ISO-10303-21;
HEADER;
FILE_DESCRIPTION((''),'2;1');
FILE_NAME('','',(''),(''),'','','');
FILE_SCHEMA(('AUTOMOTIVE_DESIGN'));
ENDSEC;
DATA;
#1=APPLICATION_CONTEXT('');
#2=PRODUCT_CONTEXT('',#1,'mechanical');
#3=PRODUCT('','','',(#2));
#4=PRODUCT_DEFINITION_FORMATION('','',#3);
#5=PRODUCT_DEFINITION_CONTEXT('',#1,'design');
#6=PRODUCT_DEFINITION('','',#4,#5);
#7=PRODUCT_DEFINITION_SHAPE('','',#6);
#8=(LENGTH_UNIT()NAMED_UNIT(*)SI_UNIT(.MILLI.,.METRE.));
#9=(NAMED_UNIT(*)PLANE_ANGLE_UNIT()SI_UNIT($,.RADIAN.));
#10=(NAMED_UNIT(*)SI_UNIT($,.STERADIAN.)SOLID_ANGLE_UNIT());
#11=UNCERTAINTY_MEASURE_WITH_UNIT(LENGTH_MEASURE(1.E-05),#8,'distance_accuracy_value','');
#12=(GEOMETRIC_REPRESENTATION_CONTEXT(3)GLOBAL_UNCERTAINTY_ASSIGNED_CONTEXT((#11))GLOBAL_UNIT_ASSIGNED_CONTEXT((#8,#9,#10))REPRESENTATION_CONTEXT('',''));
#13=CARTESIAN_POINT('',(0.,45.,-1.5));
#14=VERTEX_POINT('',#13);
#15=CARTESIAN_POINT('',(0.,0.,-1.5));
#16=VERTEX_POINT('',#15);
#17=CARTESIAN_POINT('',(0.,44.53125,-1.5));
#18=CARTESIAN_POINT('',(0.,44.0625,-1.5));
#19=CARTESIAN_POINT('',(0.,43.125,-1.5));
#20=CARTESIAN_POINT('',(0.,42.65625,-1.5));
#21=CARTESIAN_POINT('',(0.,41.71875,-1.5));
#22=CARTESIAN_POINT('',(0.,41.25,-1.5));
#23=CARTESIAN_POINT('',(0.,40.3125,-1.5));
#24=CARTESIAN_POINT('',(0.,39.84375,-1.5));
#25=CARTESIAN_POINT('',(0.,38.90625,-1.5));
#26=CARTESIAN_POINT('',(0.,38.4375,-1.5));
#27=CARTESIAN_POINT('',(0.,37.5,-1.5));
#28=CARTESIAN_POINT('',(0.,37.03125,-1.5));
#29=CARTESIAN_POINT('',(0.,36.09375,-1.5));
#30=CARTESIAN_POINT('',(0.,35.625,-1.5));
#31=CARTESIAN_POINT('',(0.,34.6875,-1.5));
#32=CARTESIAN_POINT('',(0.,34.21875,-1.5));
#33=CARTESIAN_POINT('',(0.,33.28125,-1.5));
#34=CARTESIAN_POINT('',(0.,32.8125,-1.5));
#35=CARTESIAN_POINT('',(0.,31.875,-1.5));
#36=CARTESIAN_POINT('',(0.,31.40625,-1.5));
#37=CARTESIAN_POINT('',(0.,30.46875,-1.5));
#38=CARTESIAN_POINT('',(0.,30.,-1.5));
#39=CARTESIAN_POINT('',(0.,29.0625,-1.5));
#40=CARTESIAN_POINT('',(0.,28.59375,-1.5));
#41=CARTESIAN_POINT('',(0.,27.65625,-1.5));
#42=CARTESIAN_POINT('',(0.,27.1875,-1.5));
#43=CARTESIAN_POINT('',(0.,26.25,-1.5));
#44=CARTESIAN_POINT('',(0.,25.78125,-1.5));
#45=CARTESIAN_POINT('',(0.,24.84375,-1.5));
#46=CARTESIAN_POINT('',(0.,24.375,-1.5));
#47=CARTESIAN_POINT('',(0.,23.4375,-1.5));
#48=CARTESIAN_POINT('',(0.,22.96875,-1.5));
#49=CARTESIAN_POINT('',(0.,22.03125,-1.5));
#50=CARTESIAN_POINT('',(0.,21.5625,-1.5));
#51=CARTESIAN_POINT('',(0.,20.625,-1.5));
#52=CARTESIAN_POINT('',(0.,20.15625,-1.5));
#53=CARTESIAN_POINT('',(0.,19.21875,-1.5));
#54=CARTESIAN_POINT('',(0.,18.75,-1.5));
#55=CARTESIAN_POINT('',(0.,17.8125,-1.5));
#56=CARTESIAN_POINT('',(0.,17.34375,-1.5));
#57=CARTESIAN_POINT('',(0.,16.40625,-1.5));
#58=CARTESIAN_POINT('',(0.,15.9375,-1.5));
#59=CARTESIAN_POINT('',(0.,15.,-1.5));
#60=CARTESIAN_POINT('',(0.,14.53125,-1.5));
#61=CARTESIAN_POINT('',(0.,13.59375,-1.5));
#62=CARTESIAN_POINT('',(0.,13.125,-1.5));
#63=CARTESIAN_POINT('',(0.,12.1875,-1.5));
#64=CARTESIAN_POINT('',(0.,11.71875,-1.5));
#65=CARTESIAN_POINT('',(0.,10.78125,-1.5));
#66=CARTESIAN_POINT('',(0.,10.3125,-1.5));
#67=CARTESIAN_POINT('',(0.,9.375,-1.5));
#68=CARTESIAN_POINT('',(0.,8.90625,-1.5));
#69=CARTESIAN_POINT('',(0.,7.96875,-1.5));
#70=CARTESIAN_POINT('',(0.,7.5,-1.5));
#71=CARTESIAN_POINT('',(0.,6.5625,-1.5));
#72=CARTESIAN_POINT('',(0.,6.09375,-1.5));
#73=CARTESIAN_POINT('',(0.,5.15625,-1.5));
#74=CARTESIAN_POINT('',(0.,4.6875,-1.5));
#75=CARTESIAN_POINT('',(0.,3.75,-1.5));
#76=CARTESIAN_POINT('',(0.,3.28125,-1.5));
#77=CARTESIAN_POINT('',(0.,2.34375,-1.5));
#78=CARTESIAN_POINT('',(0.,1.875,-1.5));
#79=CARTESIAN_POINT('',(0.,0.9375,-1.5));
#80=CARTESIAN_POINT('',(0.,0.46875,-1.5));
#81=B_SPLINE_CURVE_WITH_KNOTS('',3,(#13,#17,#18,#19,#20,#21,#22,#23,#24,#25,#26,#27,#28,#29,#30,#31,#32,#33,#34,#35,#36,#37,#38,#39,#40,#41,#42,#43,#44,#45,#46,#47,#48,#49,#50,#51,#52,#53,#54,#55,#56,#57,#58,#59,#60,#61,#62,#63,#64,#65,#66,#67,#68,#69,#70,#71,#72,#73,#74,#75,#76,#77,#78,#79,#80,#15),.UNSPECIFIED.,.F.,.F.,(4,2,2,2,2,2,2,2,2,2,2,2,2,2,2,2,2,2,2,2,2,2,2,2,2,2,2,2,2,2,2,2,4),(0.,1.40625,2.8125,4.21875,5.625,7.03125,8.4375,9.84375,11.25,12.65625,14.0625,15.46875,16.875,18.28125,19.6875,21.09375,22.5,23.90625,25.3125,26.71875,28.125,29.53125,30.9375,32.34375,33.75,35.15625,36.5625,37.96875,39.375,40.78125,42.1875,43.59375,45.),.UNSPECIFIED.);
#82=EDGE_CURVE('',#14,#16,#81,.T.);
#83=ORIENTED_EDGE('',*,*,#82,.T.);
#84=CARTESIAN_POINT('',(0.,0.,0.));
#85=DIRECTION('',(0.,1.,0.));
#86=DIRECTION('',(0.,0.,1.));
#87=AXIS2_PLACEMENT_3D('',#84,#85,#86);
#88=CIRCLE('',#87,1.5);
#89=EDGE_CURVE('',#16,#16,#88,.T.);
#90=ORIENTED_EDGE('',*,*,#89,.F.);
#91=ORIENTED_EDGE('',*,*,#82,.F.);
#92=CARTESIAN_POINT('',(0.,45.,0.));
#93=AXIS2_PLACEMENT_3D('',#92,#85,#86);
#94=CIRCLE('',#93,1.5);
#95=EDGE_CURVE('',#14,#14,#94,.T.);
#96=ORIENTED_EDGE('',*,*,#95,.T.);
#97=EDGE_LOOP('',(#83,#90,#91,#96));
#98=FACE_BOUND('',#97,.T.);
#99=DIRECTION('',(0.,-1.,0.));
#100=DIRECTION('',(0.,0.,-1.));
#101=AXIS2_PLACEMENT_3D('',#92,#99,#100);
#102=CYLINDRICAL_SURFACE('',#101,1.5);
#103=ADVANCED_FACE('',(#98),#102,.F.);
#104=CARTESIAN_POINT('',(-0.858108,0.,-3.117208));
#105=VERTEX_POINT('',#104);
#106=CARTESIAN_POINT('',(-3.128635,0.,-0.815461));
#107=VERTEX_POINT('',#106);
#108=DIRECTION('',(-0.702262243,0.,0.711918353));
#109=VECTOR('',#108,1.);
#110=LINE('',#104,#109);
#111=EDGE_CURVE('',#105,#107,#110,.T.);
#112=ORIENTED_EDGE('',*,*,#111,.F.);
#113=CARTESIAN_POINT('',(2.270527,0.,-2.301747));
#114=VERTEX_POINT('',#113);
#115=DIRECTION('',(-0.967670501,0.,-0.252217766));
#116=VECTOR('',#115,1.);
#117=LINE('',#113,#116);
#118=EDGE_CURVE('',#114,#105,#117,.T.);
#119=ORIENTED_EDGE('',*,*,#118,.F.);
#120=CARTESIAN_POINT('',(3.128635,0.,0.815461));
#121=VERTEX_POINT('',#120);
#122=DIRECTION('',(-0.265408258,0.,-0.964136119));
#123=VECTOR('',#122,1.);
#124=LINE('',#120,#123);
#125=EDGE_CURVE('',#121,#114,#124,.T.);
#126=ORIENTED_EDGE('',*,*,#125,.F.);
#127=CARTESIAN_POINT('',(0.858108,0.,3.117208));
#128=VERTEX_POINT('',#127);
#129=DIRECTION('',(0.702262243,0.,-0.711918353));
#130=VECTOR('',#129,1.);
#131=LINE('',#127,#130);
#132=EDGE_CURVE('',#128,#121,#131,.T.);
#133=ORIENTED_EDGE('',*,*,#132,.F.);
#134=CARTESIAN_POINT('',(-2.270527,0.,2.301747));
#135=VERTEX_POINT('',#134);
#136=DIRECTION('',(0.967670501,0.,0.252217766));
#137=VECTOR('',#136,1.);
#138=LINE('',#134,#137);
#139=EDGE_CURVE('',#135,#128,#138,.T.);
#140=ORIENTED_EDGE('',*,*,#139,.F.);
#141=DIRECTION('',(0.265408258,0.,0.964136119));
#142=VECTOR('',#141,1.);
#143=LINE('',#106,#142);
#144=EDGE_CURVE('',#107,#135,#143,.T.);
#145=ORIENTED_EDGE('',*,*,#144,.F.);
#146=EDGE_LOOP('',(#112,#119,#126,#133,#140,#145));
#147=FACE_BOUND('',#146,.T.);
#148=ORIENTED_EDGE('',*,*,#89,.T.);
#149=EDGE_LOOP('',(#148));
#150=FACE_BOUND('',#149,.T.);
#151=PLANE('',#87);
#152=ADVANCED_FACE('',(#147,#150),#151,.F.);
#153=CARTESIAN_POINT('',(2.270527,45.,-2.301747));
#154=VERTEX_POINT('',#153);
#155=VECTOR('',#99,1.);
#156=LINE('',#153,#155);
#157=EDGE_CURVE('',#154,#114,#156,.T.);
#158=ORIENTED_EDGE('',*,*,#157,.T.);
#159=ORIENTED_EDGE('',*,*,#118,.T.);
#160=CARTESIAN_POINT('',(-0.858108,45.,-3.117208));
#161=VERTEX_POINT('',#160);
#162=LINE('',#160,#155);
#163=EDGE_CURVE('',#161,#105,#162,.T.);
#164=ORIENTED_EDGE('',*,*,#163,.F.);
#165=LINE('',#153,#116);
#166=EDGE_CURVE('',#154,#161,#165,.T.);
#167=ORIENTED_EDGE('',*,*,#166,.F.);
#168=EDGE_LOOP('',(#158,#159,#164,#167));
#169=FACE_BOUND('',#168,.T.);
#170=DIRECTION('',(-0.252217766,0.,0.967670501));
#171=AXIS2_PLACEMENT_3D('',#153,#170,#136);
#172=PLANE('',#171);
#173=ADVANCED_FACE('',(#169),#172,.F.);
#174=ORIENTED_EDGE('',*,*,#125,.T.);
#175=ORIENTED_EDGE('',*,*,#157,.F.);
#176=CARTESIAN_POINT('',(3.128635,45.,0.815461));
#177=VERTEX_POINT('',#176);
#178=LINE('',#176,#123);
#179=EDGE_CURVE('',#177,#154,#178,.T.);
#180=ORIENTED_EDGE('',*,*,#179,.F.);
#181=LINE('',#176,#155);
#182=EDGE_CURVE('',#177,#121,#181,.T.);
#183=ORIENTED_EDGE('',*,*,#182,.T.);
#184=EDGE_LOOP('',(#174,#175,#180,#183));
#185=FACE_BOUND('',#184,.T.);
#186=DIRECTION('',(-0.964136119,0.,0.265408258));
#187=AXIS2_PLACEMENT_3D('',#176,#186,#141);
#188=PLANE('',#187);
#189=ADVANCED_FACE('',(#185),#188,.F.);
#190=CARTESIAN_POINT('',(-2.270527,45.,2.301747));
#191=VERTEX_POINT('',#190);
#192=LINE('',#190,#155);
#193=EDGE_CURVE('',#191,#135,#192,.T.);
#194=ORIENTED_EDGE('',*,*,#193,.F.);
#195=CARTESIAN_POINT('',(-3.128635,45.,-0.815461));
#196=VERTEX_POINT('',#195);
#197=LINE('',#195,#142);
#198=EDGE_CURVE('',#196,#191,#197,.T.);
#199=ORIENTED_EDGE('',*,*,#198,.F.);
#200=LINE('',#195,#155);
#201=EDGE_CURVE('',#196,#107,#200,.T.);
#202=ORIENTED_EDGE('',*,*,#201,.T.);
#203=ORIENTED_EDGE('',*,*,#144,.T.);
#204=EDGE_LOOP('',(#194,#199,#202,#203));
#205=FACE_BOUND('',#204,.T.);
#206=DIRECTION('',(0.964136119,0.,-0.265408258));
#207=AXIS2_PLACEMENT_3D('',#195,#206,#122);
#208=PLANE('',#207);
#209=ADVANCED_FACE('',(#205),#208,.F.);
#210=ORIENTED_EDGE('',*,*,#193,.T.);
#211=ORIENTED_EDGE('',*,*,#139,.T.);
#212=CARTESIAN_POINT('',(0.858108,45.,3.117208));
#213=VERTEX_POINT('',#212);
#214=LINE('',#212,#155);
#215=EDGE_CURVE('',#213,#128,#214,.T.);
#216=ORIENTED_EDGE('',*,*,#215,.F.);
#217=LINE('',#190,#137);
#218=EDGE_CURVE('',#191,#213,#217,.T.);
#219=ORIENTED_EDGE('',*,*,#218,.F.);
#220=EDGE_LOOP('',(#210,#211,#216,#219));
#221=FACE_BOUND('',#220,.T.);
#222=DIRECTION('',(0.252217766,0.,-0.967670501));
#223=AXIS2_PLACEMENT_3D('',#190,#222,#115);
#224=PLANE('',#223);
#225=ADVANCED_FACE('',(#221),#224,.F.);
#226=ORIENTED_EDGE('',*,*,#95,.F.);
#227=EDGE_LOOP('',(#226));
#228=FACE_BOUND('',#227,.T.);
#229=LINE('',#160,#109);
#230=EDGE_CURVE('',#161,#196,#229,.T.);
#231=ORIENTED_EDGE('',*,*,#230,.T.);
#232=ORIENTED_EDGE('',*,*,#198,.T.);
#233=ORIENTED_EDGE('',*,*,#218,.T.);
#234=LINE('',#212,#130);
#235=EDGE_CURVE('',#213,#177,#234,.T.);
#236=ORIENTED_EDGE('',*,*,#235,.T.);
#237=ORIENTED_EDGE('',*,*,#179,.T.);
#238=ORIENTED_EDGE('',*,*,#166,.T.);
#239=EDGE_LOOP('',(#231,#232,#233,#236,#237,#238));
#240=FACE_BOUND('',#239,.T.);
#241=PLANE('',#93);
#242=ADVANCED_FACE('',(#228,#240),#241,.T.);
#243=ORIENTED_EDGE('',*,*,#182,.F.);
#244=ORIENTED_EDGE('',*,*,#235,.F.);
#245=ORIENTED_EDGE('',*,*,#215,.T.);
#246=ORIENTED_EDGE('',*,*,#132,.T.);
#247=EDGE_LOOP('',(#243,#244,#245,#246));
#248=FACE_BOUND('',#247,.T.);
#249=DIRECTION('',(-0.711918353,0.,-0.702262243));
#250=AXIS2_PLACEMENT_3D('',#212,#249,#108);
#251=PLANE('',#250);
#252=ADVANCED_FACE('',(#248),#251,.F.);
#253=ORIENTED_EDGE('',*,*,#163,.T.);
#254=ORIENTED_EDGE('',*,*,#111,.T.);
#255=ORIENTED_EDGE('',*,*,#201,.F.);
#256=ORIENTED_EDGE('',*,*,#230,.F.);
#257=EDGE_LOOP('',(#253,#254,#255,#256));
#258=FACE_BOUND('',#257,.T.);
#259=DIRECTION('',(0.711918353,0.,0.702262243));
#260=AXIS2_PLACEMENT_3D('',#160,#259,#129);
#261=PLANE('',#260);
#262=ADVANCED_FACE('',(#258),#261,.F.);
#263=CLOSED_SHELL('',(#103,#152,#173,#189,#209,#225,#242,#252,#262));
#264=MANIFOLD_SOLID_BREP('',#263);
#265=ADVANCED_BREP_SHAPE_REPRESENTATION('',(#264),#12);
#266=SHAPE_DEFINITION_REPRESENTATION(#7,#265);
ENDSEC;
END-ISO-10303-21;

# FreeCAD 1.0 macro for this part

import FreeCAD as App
import Part
import Sketcher


def add_polygon(sketch, points):
    """Adds a closed chain of lines whose ends are joined by coincident constraints."""
    first, n = sketch.GeometryCount, len(points)
    for a, b in zip(points, points[1:] + points[:1]):
        sketch.addGeometry(Part.LineSegment(App.Vector(*a, 0), App.Vector(*b, 0)), False)
    for i in range(n):
        sketch.addConstraint(Sketcher.Constraint("Coincident", first + i, 2, first + (i + 1) % n, 1))

doc = App.newDocument("Part")
body = doc.addObject("PartDesign::Body", "Body")

# Sketch on XZ plane
sketch1 = body.newObject("Sketcher::SketchObject", "Sketch")
sketch1.AttachmentSupport = (doc.getObject("XZ_Plane"), [""])
sketch1.MapMode = "FlatFace"
add_polygon(sketch1, [(0.9, 3.1), (3.1, 0.8), (2.3, -2.3), (-0.9, -3.1), (-3.1, -0.8), (-2.3, 2.3)])  # lines 0-5
sketch1.addGeometry(Part.Circle(App.Vector(0, 0, 0), App.Vector(0, 0, 1), 1.5), False)  # 6
sketch1.addConstraint([
    Sketcher.Constraint("Coincident", 6, 3, -1, 1),
    Sketcher.Constraint("Symmetric", 0, 2, 3, 2, -1, 1),
    Sketcher.Constraint("Symmetric", 1, 2, 4, 2, -1, 1),
    Sketcher.Constraint("Symmetric", 2, 2, 5, 2, -1, 1),
    Sketcher.Constraint("Equal", 0, 1),
    Sketcher.Constraint("Equal", 1, 2),
    Sketcher.Constraint("Diameter", 6, 3.0),
    Sketcher.Constraint("Distance", 0, 3.233162),
    Sketcher.Constraint("DistanceY", -1, 1, 0, 2, 0.815461),
    Sketcher.Constraint("DistanceY", 2, 2, 1, 2, 0.815461),
    Sketcher.Constraint("DistanceY", 2, 2, 0, 2, 3.932669),
])
pad1 = body.newObject("PartDesign::Pad", "Pad")
pad1.Profile = sketch1
pad1.Length = 45
pad1.Reversed = True

doc.recompute()
